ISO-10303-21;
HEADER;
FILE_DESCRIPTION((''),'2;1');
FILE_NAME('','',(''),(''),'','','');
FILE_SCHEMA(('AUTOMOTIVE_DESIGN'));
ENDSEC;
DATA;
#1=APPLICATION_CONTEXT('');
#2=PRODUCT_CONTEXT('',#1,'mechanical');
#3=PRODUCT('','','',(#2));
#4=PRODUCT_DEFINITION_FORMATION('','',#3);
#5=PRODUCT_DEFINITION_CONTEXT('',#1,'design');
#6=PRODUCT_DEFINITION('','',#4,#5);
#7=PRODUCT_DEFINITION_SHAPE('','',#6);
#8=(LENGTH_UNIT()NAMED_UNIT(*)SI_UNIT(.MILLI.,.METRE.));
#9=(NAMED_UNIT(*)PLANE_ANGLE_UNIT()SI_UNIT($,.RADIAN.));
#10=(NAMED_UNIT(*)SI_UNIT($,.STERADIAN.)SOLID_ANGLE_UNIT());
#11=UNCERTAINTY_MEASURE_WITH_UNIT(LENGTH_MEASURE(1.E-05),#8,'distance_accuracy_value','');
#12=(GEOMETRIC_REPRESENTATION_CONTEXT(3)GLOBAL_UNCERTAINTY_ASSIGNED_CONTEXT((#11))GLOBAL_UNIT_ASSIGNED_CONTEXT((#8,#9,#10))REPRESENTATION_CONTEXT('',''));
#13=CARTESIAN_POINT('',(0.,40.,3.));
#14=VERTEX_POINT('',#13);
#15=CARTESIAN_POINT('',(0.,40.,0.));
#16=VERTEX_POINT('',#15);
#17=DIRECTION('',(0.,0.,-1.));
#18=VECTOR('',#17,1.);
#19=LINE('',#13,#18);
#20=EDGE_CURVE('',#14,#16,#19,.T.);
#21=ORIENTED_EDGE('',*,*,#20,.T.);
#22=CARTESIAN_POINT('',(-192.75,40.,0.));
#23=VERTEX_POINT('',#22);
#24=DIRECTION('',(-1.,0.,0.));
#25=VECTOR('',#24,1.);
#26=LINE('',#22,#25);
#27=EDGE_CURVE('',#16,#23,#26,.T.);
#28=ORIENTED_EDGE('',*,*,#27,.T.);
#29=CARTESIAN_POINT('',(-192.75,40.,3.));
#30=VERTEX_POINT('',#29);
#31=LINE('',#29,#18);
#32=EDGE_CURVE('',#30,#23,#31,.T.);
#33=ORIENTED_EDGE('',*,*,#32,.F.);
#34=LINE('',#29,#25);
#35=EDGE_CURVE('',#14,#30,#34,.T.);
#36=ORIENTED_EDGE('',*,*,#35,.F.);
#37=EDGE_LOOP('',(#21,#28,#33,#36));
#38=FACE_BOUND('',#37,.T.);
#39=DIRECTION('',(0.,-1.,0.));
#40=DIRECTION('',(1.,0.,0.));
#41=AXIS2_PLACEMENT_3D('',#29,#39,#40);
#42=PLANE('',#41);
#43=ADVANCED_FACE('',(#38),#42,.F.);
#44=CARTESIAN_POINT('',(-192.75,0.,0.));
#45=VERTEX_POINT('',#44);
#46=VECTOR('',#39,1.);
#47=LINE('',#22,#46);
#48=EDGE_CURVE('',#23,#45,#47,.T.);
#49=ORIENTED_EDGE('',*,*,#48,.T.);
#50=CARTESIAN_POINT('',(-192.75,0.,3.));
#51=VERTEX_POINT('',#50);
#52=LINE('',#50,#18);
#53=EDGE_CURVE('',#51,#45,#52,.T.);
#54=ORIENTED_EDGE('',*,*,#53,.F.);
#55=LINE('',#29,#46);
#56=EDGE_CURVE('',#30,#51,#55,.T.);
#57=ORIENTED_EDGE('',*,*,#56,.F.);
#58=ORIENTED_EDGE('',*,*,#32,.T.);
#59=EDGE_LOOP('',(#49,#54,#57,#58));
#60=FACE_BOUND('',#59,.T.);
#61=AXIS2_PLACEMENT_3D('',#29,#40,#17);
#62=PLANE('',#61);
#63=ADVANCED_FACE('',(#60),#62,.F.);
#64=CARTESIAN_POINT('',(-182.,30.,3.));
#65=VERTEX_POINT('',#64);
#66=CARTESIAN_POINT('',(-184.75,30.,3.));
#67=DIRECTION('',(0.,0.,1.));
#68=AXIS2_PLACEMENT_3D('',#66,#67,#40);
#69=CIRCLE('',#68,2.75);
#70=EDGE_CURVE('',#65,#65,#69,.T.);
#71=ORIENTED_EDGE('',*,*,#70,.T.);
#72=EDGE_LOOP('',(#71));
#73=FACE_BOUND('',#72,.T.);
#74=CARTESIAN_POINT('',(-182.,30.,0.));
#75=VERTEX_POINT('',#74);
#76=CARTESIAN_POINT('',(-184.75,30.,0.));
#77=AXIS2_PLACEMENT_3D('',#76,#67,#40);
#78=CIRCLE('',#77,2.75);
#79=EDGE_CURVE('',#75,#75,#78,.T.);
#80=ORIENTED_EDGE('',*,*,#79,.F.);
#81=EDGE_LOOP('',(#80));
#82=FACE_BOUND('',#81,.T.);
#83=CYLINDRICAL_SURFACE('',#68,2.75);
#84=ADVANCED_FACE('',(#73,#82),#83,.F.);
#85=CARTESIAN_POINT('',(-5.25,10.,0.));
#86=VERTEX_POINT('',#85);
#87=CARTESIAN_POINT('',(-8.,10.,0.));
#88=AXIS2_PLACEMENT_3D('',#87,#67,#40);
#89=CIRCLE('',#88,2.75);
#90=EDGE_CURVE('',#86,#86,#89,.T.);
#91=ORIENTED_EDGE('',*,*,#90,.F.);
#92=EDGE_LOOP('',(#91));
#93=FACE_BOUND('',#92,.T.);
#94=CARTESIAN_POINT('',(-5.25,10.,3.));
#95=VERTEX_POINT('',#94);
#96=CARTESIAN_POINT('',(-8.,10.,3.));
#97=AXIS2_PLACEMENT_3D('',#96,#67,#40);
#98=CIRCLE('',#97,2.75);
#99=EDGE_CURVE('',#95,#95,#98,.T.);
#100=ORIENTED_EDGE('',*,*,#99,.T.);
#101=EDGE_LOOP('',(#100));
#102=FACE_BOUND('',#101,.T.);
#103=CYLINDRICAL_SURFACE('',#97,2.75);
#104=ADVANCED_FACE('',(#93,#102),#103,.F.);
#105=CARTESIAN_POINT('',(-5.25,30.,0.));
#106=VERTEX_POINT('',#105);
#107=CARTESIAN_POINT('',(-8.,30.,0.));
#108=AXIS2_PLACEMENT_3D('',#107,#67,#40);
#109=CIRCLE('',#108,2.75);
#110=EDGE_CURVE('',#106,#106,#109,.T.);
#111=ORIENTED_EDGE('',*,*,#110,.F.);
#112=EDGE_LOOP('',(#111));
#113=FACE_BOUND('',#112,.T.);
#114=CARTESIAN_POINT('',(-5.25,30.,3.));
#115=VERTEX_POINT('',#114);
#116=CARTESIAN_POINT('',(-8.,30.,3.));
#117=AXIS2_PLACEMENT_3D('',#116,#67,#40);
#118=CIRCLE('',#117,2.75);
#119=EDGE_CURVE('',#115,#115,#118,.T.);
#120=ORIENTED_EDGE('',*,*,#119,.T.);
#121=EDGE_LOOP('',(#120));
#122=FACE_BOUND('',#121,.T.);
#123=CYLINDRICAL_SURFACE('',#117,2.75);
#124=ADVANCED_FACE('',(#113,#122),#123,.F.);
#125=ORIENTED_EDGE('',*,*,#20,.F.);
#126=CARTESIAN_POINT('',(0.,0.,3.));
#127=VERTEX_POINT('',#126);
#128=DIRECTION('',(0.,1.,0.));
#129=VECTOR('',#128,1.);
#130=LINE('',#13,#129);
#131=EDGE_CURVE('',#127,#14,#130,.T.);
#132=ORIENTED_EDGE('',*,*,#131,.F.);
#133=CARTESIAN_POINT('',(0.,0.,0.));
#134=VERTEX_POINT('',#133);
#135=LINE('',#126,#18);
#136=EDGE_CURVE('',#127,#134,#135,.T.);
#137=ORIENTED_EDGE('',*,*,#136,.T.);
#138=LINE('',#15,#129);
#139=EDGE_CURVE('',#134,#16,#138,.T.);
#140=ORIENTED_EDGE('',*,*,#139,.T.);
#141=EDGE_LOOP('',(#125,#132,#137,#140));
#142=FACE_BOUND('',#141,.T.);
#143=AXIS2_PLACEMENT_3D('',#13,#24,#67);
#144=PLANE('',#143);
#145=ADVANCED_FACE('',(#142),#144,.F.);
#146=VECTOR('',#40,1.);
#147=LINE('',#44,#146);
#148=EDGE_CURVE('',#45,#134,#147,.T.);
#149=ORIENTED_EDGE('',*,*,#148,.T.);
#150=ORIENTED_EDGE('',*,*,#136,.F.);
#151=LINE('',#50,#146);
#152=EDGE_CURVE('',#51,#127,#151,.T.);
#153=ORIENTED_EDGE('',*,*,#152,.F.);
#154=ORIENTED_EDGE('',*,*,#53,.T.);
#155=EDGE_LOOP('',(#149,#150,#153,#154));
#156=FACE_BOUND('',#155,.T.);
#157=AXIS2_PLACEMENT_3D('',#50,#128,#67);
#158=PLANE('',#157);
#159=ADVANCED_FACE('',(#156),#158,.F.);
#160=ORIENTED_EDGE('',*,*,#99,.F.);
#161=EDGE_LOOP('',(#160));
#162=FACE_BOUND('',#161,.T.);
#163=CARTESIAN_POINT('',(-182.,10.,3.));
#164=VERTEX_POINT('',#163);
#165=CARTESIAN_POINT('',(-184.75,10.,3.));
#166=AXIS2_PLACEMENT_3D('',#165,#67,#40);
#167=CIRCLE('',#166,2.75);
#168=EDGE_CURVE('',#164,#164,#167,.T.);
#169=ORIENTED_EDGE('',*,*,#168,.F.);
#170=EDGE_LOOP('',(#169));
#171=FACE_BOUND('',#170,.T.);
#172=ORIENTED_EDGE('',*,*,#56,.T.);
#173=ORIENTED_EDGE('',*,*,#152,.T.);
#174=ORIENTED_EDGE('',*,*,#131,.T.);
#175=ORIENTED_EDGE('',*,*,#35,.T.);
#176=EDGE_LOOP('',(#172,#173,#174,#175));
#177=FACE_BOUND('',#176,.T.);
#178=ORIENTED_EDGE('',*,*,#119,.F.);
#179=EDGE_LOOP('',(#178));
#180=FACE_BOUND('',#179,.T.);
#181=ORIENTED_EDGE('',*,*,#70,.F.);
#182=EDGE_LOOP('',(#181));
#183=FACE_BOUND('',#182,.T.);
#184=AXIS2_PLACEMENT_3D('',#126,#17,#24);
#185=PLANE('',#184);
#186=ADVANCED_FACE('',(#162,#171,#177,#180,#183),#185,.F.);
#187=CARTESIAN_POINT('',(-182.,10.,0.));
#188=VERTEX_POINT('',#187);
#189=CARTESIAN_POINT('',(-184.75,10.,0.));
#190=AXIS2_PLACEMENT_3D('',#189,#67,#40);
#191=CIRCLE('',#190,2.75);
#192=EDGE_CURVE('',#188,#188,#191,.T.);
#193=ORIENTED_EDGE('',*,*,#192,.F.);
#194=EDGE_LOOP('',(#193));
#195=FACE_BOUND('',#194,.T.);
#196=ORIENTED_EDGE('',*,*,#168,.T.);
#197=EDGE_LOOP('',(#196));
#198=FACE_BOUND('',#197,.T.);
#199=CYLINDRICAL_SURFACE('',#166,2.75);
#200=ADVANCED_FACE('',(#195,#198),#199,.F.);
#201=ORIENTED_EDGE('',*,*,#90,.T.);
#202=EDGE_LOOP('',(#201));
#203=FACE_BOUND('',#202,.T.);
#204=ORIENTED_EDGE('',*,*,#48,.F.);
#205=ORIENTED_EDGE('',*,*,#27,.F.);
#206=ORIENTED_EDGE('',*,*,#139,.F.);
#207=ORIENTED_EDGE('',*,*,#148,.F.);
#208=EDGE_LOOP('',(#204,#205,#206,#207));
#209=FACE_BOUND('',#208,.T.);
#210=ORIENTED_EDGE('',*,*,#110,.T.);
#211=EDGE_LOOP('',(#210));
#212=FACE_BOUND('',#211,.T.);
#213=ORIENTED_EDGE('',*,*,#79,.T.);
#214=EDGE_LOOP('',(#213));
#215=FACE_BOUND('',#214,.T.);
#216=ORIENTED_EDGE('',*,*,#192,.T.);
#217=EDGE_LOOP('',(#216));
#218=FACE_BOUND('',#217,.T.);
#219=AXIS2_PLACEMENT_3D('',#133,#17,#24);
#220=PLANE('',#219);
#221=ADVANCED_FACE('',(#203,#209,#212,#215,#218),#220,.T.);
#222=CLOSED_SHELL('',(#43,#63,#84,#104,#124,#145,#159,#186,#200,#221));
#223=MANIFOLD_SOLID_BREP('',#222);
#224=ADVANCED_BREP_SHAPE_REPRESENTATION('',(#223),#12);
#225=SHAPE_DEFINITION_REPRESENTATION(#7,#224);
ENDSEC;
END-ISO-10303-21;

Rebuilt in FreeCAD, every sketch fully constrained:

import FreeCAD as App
import Part
import Sketcher

V = App.Vector
Q = App.Units.Quantity

doc = App.newDocument("Part")
body = doc.addObject("PartDesign::Body", "Body")

# Sketch on XY plane
sketch1 = doc.addObject("Sketcher::SketchObject", "Sketch")
body.addObject(sketch1)
sketch1.AttachmentSupport = (doc.XY_Plane, [""])
sketch1.MapMode = "FlatFace"
sketch1.addGeometry(Part.LineSegment(V(-192.75, 40, 0), V(-192.75, 0, 0)), False)
sketch1.addGeometry(Part.LineSegment(V(-192.75, 0, 0), V(0, 0, 0)), False)
sketch1.addGeometry(Part.LineSegment(V(0, 0, 0), V(0, 40, 0)), False)
sketch1.addGeometry(Part.LineSegment(V(0, 40, 0), V(-192.75, 40, 0)), False)
sketch1.addConstraint(Sketcher.Constraint("Coincident", 0, 2, 1, 1))
sketch1.addConstraint(Sketcher.Constraint("Coincident", 1, 2, 2, 1))
sketch1.addConstraint(Sketcher.Constraint("Coincident", 2, 2, 3, 1))
sketch1.addConstraint(Sketcher.Constraint("Coincident", 3, 2, 0, 1))
sketch1.addConstraint(Sketcher.Constraint("Vertical", 0))
sketch1.addConstraint(Sketcher.Constraint("Horizontal", 1))
sketch1.addConstraint(Sketcher.Constraint("Vertical", 2))
sketch1.addConstraint(Sketcher.Constraint("Horizontal", 3))
sketch1.addConstraint(Sketcher.Constraint("Coincident", 1, 2, -1, 1))
sketch1.addConstraint(Sketcher.Constraint("DistanceY", 0, 2, 0, 1, Q("40 mm")))
sketch1.addConstraint(Sketcher.Constraint("DistanceX", 1, 1, 1, 2, Q("192.75 mm")))
pad1 = doc.addObject("PartDesign::Pad", "Pad")
body.addObject(pad1)
pad1.Profile = sketch1
pad1.Length = 3

# Sketch on XY plane
sketch2 = doc.addObject("Sketcher::SketchObject", "Sketch001")
body.addObject(sketch2)
sketch2.AttachmentSupport = (doc.XY_Plane, [""])
sketch2.MapMode = "FlatFace"
sketch2.AttachmentOffset = App.Placement(V(0, 0, 3), App.Rotation())
sketch2.addGeometry(Part.Circle(V(-8, 30, 0), V(0, 0, 1), 2.75), False)
sketch2.addGeometry(Part.Circle(V(-8, 10, 0), V(0, 0, 1), 2.75), False)
sketch2.addGeometry(Part.Circle(V(-184.75, 30, 0), V(0, 0, 1), 2.75), False)
sketch2.addGeometry(Part.Circle(V(-184.75, 10, 0), V(0, 0, 1), 2.75), False)
sketch2.addConstraint(Sketcher.Constraint("Equal", 0, 1))
sketch2.addConstraint(Sketcher.Constraint("Equal", 1, 2))
sketch2.addConstraint(Sketcher.Constraint("Equal", 2, 3))
sketch2.addConstraint(Sketcher.Constraint("Horizontal", 0, 3, 2, 3))
sketch2.addConstraint(Sketcher.Constraint("Horizontal", 1, 3, 3, 3))
sketch2.addConstraint(Sketcher.Constraint("Vertical", 0, 3, 1, 3))
sketch2.addConstraint(Sketcher.Constraint("Vertical", 2, 3, 3, 3))
sketch2.addConstraint(Sketcher.Constraint("Diameter", 0, Q("5.5 mm")))
sketch2.addConstraint(Sketcher.Constraint("DistanceX", 0, 3, -1, 1, Q("8 mm")))
sketch2.addConstraint(Sketcher.Constraint("DistanceY", -1, 1, 0, 3, Q("30 mm")))
sketch2.addConstraint(Sketcher.Constraint("DistanceY", -1, 1, 1, 3, Q("10 mm")))
sketch2.addConstraint(Sketcher.Constraint("DistanceX", 2, 3, -1, 1, Q("184.75 mm")))
doc.recompute()
hole = doc.addObject("PartDesign::Hole", "Hole")
body.addObject(hole)
hole.Profile = sketch2
hole.ThreadType = "None"
hole.Diameter = 5.5
hole.DepthType = "ThroughAll"

doc.recompute()
